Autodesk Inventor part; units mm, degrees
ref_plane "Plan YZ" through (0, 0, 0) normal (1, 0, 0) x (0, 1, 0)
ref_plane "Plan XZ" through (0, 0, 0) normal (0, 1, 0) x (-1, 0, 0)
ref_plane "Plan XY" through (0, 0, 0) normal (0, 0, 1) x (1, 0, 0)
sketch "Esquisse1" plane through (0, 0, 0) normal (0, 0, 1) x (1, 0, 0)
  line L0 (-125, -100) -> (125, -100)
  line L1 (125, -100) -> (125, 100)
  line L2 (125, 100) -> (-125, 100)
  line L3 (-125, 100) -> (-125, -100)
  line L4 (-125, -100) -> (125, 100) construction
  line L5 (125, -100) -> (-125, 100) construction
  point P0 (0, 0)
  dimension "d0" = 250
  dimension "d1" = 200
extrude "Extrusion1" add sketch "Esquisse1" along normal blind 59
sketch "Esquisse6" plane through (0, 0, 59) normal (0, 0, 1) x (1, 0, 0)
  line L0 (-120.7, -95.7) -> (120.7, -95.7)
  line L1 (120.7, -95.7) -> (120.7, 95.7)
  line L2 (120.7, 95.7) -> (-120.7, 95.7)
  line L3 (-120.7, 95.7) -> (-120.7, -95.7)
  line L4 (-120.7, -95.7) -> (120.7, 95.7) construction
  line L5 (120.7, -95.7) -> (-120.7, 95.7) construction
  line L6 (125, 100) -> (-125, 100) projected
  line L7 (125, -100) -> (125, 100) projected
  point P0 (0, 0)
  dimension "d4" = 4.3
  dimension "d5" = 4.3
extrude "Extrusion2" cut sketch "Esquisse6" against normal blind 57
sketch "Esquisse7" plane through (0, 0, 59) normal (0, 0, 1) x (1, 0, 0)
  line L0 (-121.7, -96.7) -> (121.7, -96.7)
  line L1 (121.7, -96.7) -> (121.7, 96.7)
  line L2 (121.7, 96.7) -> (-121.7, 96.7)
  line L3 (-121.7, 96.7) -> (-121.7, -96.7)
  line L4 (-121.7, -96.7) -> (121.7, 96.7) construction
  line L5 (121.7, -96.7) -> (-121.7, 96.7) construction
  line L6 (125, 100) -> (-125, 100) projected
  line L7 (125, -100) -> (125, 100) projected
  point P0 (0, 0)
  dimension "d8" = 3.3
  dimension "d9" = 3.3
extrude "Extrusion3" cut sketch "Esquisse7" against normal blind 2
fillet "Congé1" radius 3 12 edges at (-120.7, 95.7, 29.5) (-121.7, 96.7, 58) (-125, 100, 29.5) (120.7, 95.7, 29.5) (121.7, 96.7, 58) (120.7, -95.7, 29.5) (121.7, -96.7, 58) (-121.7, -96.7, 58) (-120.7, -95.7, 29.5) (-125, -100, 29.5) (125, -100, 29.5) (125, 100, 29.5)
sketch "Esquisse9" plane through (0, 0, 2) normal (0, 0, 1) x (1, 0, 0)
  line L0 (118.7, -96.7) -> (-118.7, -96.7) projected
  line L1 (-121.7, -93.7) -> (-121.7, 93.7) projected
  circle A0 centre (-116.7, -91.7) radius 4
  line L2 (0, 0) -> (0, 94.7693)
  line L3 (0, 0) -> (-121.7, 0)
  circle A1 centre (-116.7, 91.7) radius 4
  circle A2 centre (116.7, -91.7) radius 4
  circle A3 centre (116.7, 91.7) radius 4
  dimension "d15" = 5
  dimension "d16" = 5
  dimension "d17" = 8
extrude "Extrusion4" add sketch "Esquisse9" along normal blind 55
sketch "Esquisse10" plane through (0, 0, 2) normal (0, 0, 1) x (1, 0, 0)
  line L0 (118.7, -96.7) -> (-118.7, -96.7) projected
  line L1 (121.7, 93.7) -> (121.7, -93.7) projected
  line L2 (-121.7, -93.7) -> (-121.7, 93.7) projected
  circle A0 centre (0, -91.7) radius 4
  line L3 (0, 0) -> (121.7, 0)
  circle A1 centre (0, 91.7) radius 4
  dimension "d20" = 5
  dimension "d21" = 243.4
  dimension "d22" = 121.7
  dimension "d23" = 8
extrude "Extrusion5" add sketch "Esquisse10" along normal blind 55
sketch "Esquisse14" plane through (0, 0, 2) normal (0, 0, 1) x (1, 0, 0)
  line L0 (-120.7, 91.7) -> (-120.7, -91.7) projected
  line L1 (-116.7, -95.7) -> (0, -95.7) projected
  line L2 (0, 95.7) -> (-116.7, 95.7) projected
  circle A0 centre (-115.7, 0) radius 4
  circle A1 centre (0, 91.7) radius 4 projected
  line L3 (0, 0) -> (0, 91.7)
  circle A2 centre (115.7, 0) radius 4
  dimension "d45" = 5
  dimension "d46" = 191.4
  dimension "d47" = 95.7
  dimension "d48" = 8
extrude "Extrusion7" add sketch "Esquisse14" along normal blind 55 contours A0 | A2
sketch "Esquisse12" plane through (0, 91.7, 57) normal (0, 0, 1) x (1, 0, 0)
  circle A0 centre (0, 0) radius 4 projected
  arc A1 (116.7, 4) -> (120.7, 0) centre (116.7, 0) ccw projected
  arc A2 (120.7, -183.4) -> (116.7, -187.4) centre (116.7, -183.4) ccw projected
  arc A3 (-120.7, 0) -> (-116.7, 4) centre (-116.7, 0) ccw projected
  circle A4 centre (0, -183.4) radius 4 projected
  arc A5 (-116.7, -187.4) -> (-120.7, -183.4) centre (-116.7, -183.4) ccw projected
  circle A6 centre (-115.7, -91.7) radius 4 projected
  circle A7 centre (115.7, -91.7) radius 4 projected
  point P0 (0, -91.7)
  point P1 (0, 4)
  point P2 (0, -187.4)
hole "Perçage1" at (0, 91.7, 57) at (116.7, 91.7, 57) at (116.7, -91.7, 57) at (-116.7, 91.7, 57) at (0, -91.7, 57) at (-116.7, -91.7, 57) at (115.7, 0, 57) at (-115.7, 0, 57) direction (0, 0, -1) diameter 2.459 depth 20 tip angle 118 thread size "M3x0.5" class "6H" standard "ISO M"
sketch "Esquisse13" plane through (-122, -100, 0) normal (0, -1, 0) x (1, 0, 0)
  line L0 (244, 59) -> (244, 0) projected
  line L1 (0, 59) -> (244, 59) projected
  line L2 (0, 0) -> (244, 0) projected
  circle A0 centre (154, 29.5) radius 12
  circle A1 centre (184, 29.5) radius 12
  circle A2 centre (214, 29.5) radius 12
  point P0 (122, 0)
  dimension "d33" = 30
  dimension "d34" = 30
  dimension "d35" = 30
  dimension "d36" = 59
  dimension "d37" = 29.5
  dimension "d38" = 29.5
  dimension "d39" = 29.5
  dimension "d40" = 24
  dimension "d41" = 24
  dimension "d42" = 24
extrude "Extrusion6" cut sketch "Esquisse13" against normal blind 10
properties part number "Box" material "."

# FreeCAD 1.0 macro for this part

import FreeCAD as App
import Part
import Sketcher


def edges_at(feature, points):
    """Names of the edges that pass closest to the given points."""
    edges = feature.Shape.Edges
    near = lambda p: min(range(len(edges)), key=lambda i: edges[i].distToShape(Part.Vertex(*p))[0])
    return sorted({f"Edge{near(p) + 1}" for p in points})

doc = App.newDocument("Part")
body = doc.addObject("PartDesign::Body", "Body")

sketch1 = body.newObject("Sketcher::SketchObject", "Sketch")
sketch1.AttachmentSupport = (doc.getObject("XY_Plane"), [""])
sketch1.MapMode = "FlatFace"
sketch1.addGeometry(Part.LineSegment(App.Vector(-125, 100, 0), App.Vector(-125, -100, 0)), False)
sketch1.addGeometry(Part.LineSegment(App.Vector(-125, -100, 0), App.Vector(125, -100, 0)), False)
sketch1.addGeometry(Part.LineSegment(App.Vector(125, -100, 0), App.Vector(125, 100, 0)), False)
sketch1.addGeometry(Part.LineSegment(App.Vector(125, 100, 0), App.Vector(-125, 100, 0)), False)
sketch1.addConstraint(Sketcher.Constraint("Coincident", 0, 2, 1, 1))
sketch1.addConstraint(Sketcher.Constraint("Coincident", 1, 2, 2, 1))
sketch1.addConstraint(Sketcher.Constraint("Coincident", 2, 2, 3, 1))
sketch1.addConstraint(Sketcher.Constraint("Coincident", 3, 2, 0, 1))
sketch1.addConstraint(Sketcher.Constraint("Vertical", 0))
sketch1.addConstraint(Sketcher.Constraint("Horizontal", 1))
sketch1.addConstraint(Sketcher.Constraint("Vertical", 2))
sketch1.addConstraint(Sketcher.Constraint("Horizontal", 3))
sketch1.addConstraint(Sketcher.Constraint("Symmetric", 0, 2, 2, 2, -1, 1))
sketch1.addConstraint(Sketcher.Constraint("DistanceX", 1, 1, 1, 2, 250.0))
sketch1.addConstraint(Sketcher.Constraint("DistanceY", 0, 2, 0, 1, 200.0))
pad1 = body.newObject("PartDesign::Pad", "Pad")
pad1.Profile = sketch1
pad1.Length = 59

sketch2 = body.newObject("Sketcher::SketchObject", "Sketch001")
sketch2.AttachmentSupport = (doc.getObject("XY_Plane"), [""])
sketch2.MapMode = "FlatFace"
sketch2.AttachmentOffset = App.Placement(App.Vector(0, 0, 59), App.Rotation())
sketch2.addGeometry(Part.LineSegment(App.Vector(-120.7, 95.7, 0), App.Vector(-120.7, -95.7, 0)), False)
sketch2.addGeometry(Part.LineSegment(App.Vector(-120.7, -95.7, 0), App.Vector(120.7, -95.7, 0)), False)
sketch2.addGeometry(Part.LineSegment(App.Vector(120.7, -95.7, 0), App.Vector(120.7, 95.7, 0)), False)
sketch2.addGeometry(Part.LineSegment(App.Vector(120.7, 95.7, 0), App.Vector(-120.7, 95.7, 0)), False)
sketch2.addConstraint(Sketcher.Constraint("Coincident", 0, 2, 1, 1))
sketch2.addConstraint(Sketcher.Constraint("Coincident", 1, 2, 2, 1))
sketch2.addConstraint(Sketcher.Constraint("Coincident", 2, 2, 3, 1))
sketch2.addConstraint(Sketcher.Constraint("Coincident", 3, 2, 0, 1))
sketch2.addConstraint(Sketcher.Constraint("Vertical", 0))
sketch2.addConstraint(Sketcher.Constraint("Horizontal", 1))
sketch2.addConstraint(Sketcher.Constraint("Vertical", 2))
sketch2.addConstraint(Sketcher.Constraint("Horizontal", 3))
sketch2.addConstraint(Sketcher.Constraint("Symmetric", 0, 2, 2, 2, -1, 1))
sketch2.addConstraint(Sketcher.Constraint("DistanceX", 1, 1, 1, 2, 241.4))
sketch2.addConstraint(Sketcher.Constraint("DistanceY", 0, 2, 0, 1, 191.4))
pocket1 = body.newObject("PartDesign::Pocket", "Pocket")
pocket1.Profile = sketch2
pocket1.Length = 57

sketch3 = body.newObject("Sketcher::SketchObject", "Sketch002")
sketch3.AttachmentSupport = (doc.getObject("XY_Plane"), [""])
sketch3.MapMode = "FlatFace"
sketch3.AttachmentOffset = App.Placement(App.Vector(0, 0, 59), App.Rotation())
sketch3.addGeometry(Part.LineSegment(App.Vector(-121.7, 96.7, 0), App.Vector(-121.7, -96.7, 0)), False)
sketch3.addGeometry(Part.LineSegment(App.Vector(-121.7, -96.7, 0), App.Vector(121.7, -96.7, 0)), False)
sketch3.addGeometry(Part.LineSegment(App.Vector(121.7, -96.7, 0), App.Vector(121.7, 96.7, 0)), False)
sketch3.addGeometry(Part.LineSegment(App.Vector(121.7, 96.7, 0), App.Vector(-121.7, 96.7, 0)), False)
sketch3.addConstraint(Sketcher.Constraint("Coincident", 0, 2, 1, 1))
sketch3.addConstraint(Sketcher.Constraint("Coincident", 1, 2, 2, 1))
sketch3.addConstraint(Sketcher.Constraint("Coincident", 2, 2, 3, 1))
sketch3.addConstraint(Sketcher.Constraint("Coincident", 3, 2, 0, 1))
sketch3.addConstraint(Sketcher.Constraint("Vertical", 0))
sketch3.addConstraint(Sketcher.Constraint("Horizontal", 1))
sketch3.addConstraint(Sketcher.Constraint("Vertical", 2))
sketch3.addConstraint(Sketcher.Constraint("Horizontal", 3))
sketch3.addConstraint(Sketcher.Constraint("Symmetric", 0, 2, 2, 2, -1, 1))
sketch3.addConstraint(Sketcher.Constraint("DistanceX", 1, 1, 1, 2, 243.4))
sketch3.addConstraint(Sketcher.Constraint("DistanceY", 0, 2, 0, 1, 193.4))
pocket2 = body.newObject("PartDesign::Pocket", "Pocket001")
pocket2.Profile = sketch3
pocket2.Length = 2
doc.recompute()

fillet = body.newObject("PartDesign::Fillet", "Fillet")
fillet.Base = (pocket2, edges_at(pocket2, [
    (-120.7, 95.7, 29.5),
    (-121.7, 96.7, 58),
    (-125, 100, 29.5),
    (120.7, 95.7, 29.5),
    (121.7, 96.7, 58),
    (120.7, -95.7, 29.5),
    (121.7, -96.7, 58),
    (-121.7, -96.7, 58),
    (-120.7, -95.7, 29.5),
    (-125, -100, 29.5),
    (125, -100, 29.5),
    (125, 100, 29.5),
]))
fillet.Radius = 3

sketch4 = body.newObject("Sketcher::SketchObject", "Sketch003")
sketch4.AttachmentSupport = (doc.getObject("XY_Plane"), [""])
sketch4.MapMode = "FlatFace"
sketch4.AttachmentOffset = App.Placement(App.Vector(0, 0, 2), App.Rotation())
sketch4.addGeometry(Part.Circle(App.Vector(-116.7, -91.7, 0), App.Vector(0, 0, 1), 4), False)
sketch4.addGeometry(Part.Circle(App.Vector(-116.7, 91.7, 0), App.Vector(0, 0, 1), 4), False)
sketch4.addGeometry(Part.Circle(App.Vector(116.7, -91.7, 0), App.Vector(0, 0, 1), 4), False)
sketch4.addGeometry(Part.Circle(App.Vector(116.7, 91.7, 0), App.Vector(0, 0, 1), 4), False)
sketch4.addConstraint(Sketcher.Constraint("Equal", 0, 1))
sketch4.addConstraint(Sketcher.Constraint("Equal", 1, 2))
sketch4.addConstraint(Sketcher.Constraint("Equal", 2, 3))
sketch4.addConstraint(Sketcher.Constraint("Symmetric", 1, 3, 2, 3, -1, 1))
sketch4.addConstraint(Sketcher.Constraint("Symmetric", 0, 3, 3, 3, -1, 1))
sketch4.addConstraint(Sketcher.Constraint("Symmetric", 0, 3, 2, 3, -2))
sketch4.addConstraint(Sketcher.Constraint("Diameter", 0, 8.0))
sketch4.addConstraint(Sketcher.Constraint("DistanceX", 0, 3, -1, 1, 116.7))
sketch4.addConstraint(Sketcher.Constraint("DistanceY", 0, 3, -1, 1, 91.7))
pad2 = body.newObject("PartDesign::Pad", "Pad001")
pad2.Profile = sketch4
pad2.Length = 55

sketch5 = body.newObject("Sketcher::SketchObject", "Sketch004")
sketch5.AttachmentSupport = (doc.getObject("XY_Plane"), [""])
sketch5.MapMode = "FlatFace"
sketch5.AttachmentOffset = App.Placement(App.Vector(0, 0, 2), App.Rotation())
sketch5.addGeometry(Part.Circle(App.Vector(0, -91.7, 0), App.Vector(0, 0, 1), 4), False)
sketch5.addGeometry(Part.Circle(App.Vector(0, 91.7, 0), App.Vector(0, 0, 1), 4), False)
sketch5.addConstraint(Sketcher.Constraint("Equal", 0, 1))
sketch5.addConstraint(Sketcher.Constraint("Symmetric", 0, 3, 1, 3, -1, 1))
sketch5.addConstraint(Sketcher.Constraint("PointOnObject", 0, 3, -2))
sketch5.addConstraint(Sketcher.Constraint("Diameter", 0, 8.0))
sketch5.addConstraint(Sketcher.Constraint("DistanceY", 0, 3, -1, 1, 91.7))
pad3 = body.newObject("PartDesign::Pad", "Pad002")
pad3.Profile = sketch5
pad3.Length = 55

sketch6 = body.newObject("Sketcher::SketchObject", "Sketch005")
sketch6.AttachmentSupport = (doc.getObject("XY_Plane"), [""])
sketch6.MapMode = "FlatFace"
sketch6.AttachmentOffset = App.Placement(App.Vector(0, 0, 2), App.Rotation())
sketch6.addGeometry(Part.Circle(App.Vector(-115.7, 0, 0), App.Vector(0, 0, 1), 4), False)
sketch6.addGeometry(Part.Circle(App.Vector(115.7, 0, 0), App.Vector(0, 0, 1), 4), False)
sketch6.addConstraint(Sketcher.Constraint("Equal", 0, 1))
sketch6.addConstraint(Sketcher.Constraint("Symmetric", 0, 3, 1, 3, -1, 1))
sketch6.addConstraint(Sketcher.Constraint("PointOnObject", 0, 3, -1))
sketch6.addConstraint(Sketcher.Constraint("Diameter", 0, 8.0))
sketch6.addConstraint(Sketcher.Constraint("DistanceX", 0, 3, -1, 1, 115.7))
pad4 = body.newObject("PartDesign::Pad", "Pad003")
pad4.Profile = sketch6
pad4.Length = 55

sketch7 = body.newObject("Sketcher::SketchObject", "Sketch006")
sketch7.AttachmentSupport = (doc.getObject("XY_Plane"), [""])
sketch7.MapMode = "FlatFace"
sketch7.AttachmentOffset = App.Placement(App.Vector(0, 0, 57), App.Rotation())
sketch7.addGeometry(Part.Circle(App.Vector(0, 91.7, 0), App.Vector(0, 0, 1), 1.2295), False)
sketch7.addGeometry(Part.Circle(App.Vector(116.7, 91.7, 0), App.Vector(0, 0, 1), 1.2295), False)
sketch7.addGeometry(Part.Circle(App.Vector(116.7, -91.7, 0), App.Vector(0, 0, 1), 1.2295), False)
sketch7.addGeometry(Part.Circle(App.Vector(-116.7, 91.7, 0), App.Vector(0, 0, 1), 1.2295), False)
sketch7.addGeometry(Part.Circle(App.Vector(0, -91.7, 0), App.Vector(0, 0, 1), 1.2295), False)
sketch7.addGeometry(Part.Circle(App.Vector(-116.7, -91.7, 0), App.Vector(0, 0, 1), 1.2295), False)
sketch7.addGeometry(Part.Circle(App.Vector(115.7, 0, 0), App.Vector(0, 0, 1), 1.2295), False)
sketch7.addGeometry(Part.Circle(App.Vector(-115.7, 0, 0), App.Vector(0, 0, 1), 1.2295), False)
sketch7.addConstraint(Sketcher.Constraint("Equal", 0, 1))
sketch7.addConstraint(Sketcher.Constraint("Equal", 1, 2))
sketch7.addConstraint(Sketcher.Constraint("Equal", 2, 3))
sketch7.addConstraint(Sketcher.Constraint("Equal", 3, 4))
sketch7.addConstraint(Sketcher.Constraint("Equal", 4, 5))
sketch7.addConstraint(Sketcher.Constraint("Equal", 5, 6))
sketch7.addConstraint(Sketcher.Constraint("Equal", 6, 7))
sketch7.addConstraint(Sketcher.Constraint("Symmetric", 2, 3, 3, 3, -1, 1))
sketch7.addConstraint(Sketcher.Constraint("Symmetric", 0, 3, 4, 3, -1, 1))
sketch7.addConstraint(Sketcher.Constraint("Symmetric", 1, 3, 5, 3, -1, 1))
sketch7.addConstraint(Sketcher.Constraint("Symmetric", 6, 3, 7, 3, -1, 1))
sketch7.addConstraint(Sketcher.Constraint("Symmetric", 1, 3, 3, 3, -2))
sketch7.addConstraint(Sketcher.Constraint("PointOnObject", 0, 3, -2))
sketch7.addConstraint(Sketcher.Constraint("PointOnObject", 6, 3, -1))
sketch7.addConstraint(Sketcher.Constraint("Horizontal", 0, 3, 1, 3))
sketch7.addConstraint(Sketcher.Constraint("Diameter", 0, 2.459))
sketch7.addConstraint(Sketcher.Constraint("DistanceX", 6, 3, 1, 3, 1.0))
sketch7.addConstraint(Sketcher.Constraint("DistanceY", -1, 1, 0, 3, 91.7))
sketch7.addConstraint(Sketcher.Constraint("DistanceX", -1, 1, 1, 3, 116.7))
doc.recompute()
hole = body.newObject("PartDesign::Hole", "Hole")
hole.Profile = sketch7
hole.ThreadType = "None"
hole.Diameter = 2.459
hole.DepthType = "Dimension"
hole.Depth = 20
hole.DrillPoint = "Angled"
hole.DrillPointAngle = 118

sketch8 = body.newObject("Sketcher::SketchObject", "Sketch007")
sketch8.AttachmentSupport = (doc.getObject("XZ_Plane"), [""])
sketch8.MapMode = "FlatFace"
sketch8.AttachmentOffset = App.Placement(App.Vector(0, 0, 100), App.Rotation())
sketch8.addGeometry(Part.Circle(App.Vector(32, 29.5, 0), App.Vector(0, 0, 1), 12), False)
sketch8.addGeometry(Part.Circle(App.Vector(62, 29.5, 0), App.Vector(0, 0, 1), 12), False)
sketch8.addGeometry(Part.Circle(App.Vector(92, 29.5, 0), App.Vector(0, 0, 1), 12), False)
sketch8.addConstraint(Sketcher.Constraint("Equal", 0, 1))
sketch8.addConstraint(Sketcher.Constraint("Equal", 1, 2))
sketch8.addConstraint(Sketcher.Constraint("Horizontal", 0, 3, 1, 3))
sketch8.addConstraint(Sketcher.Constraint("Horizontal", 1, 3, 2, 3))
sketch8.addConstraint(Sketcher.Constraint("Diameter", 0, 24.0))
sketch8.addConstraint(Sketcher.Constraint("DistanceX", 0, 3, 1, 3, 30.0))
sketch8.addConstraint(Sketcher.Constraint("DistanceX", 1, 3, 2, 3, 30.0))
sketch8.addConstraint(Sketcher.Constraint("DistanceY", -1, 1, 0, 3, 29.5))
sketch8.addConstraint(Sketcher.Constraint("DistanceX", -1, 1, 0, 3, 32.0))
pocket3 = body.newObject("PartDesign::Pocket", "Pocket002")
pocket3.Profile = sketch8
pocket3.Length = 10

doc.recompute()
